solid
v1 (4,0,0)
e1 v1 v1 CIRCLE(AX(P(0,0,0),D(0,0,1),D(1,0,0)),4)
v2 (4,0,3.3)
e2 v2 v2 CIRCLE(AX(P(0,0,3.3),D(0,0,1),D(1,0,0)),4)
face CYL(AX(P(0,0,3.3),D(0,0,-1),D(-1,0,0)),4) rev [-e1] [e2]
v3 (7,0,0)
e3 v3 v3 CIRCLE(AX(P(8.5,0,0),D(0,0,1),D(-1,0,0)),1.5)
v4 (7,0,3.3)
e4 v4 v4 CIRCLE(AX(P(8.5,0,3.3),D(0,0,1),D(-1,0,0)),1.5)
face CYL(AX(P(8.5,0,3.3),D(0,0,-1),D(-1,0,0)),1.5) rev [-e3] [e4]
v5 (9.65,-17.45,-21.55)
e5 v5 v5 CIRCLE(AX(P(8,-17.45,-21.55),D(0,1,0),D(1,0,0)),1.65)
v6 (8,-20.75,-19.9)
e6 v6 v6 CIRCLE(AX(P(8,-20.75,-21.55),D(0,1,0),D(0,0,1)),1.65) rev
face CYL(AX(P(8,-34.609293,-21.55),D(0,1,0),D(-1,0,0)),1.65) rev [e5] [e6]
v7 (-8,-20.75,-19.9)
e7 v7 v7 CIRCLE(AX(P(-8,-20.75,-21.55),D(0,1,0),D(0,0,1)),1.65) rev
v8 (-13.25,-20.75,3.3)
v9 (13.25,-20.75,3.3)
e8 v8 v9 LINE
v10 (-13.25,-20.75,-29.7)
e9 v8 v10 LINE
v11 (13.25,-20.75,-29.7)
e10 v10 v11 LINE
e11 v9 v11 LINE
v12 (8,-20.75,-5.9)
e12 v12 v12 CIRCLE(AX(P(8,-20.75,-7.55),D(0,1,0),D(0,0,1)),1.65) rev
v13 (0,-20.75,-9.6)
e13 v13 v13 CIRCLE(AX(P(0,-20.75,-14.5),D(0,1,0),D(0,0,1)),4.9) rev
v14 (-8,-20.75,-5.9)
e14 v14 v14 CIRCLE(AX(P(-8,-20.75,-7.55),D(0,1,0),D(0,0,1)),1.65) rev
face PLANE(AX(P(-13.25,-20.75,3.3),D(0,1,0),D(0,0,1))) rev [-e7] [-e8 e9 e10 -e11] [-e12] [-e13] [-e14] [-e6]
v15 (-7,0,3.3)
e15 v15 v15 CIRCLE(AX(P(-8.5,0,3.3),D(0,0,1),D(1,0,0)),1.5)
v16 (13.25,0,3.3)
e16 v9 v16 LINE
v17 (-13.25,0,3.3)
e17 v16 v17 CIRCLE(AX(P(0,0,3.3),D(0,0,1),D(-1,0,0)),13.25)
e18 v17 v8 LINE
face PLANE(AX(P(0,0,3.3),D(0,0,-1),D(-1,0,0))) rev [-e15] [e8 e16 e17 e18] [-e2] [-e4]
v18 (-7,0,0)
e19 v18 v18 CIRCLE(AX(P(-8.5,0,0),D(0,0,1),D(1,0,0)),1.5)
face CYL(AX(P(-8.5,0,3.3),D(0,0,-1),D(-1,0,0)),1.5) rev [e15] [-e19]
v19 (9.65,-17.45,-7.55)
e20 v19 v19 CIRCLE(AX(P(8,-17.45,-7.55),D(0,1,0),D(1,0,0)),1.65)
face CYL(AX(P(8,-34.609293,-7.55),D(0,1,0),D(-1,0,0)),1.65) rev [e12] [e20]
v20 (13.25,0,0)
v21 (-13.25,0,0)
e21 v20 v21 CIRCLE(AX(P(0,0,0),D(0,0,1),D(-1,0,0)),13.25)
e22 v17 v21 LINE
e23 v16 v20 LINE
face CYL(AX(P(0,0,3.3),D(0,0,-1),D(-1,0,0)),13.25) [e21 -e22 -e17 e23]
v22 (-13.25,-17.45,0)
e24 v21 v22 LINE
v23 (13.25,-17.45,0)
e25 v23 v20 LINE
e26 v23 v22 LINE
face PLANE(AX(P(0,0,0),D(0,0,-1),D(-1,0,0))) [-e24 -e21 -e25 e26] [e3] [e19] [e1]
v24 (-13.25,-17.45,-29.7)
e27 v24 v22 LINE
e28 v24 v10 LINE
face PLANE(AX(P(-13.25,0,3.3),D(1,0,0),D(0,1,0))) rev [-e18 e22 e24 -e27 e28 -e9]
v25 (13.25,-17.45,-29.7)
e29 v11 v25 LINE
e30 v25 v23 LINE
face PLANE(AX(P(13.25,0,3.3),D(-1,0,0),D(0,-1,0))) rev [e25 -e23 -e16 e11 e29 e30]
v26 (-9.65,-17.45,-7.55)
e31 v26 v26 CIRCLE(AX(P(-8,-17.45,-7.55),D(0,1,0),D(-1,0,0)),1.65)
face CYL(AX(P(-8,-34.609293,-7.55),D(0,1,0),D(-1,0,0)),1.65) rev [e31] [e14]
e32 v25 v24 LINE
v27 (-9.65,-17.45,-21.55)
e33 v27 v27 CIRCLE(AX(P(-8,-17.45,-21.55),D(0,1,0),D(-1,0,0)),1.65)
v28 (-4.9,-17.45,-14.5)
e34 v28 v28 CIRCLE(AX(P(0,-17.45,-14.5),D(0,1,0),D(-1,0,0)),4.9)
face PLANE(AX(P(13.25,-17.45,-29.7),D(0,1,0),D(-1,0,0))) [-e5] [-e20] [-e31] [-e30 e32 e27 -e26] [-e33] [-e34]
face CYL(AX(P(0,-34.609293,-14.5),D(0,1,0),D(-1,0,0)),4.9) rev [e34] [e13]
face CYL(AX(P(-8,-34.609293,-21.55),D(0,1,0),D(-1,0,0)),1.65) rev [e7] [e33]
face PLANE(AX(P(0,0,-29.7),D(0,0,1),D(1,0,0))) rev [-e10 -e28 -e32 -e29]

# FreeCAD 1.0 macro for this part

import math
import FreeCAD as App
import Part
import Sketcher

V = App.Vector


def add_polygon(sketch, points):
    """Adds a closed chain of lines whose ends are joined by coincident constraints."""
    first, n = sketch.GeometryCount, len(points)
    for a, b in zip(points, points[1:] + points[:1]):
        sketch.addGeometry(Part.LineSegment(App.Vector(*a, 0), App.Vector(*b, 0)), False)
    for i in range(n):
        sketch.addConstraint(Sketcher.Constraint("Coincident", first + i, 2, first + (i + 1) % n, 1))

doc = App.newDocument("Part")
body = doc.addObject("PartDesign::Body", "Body")

sketch1 = body.newObject("Sketcher::SketchObject", "Sketch")
sketch1.AttachmentSupport = (doc.getObject("XY_Plane"), [""])
sketch1.MapMode = "FlatFace"
sketch1.addGeometry([
    Part.LineSegment(V(-13.2, 0, 0), V(-13.2, -20.8, 0)),
    Part.LineSegment(V(-13.2, -20.8, 0), V(13.2, -20.8, 0)),
    Part.LineSegment(V(13.2, -20.8, 0), V(13.2, 0, 0)),
    Part.ArcOfCircle(Part.Circle(V(0, 0, 0), V(0, 0, 1), 13.2), math.radians(0), math.radians(180)),
    Part.Circle(V(-8.5, 0, 0), V(0, 0, 1), 1.5),
    Part.Circle(V(0, 0, 0), V(0, 0, 1), 4),
    Part.Circle(V(8.5, 0, 0), V(0, 0, 1), 1.5),
], False)
sketch1.addConstraint([
    Sketcher.Constraint("Coincident", 0, 2, 1, 1),
    Sketcher.Constraint("Coincident", 1, 2, 2, 1),
    Sketcher.Constraint("Tangent", 2, 2, 3, 1),
    Sketcher.Constraint("Tangent", 3, 2, 0, 1),
    Sketcher.Constraint("Vertical", 0),
    Sketcher.Constraint("Horizontal", 1),
    Sketcher.Constraint("Vertical", 2),
    Sketcher.Constraint("Coincident", 3, 3, -1, 1),
    Sketcher.Constraint("Coincident", 5, 3, -1, 1),
    Sketcher.Constraint("Equal", 4, 6),
    Sketcher.Constraint("Symmetric", 4, 3, 6, 3, -1, 1),
    Sketcher.Constraint("PointOnObject", 4, 3, -1),
    Sketcher.Constraint("Diameter", 4, 3.0),
    Sketcher.Constraint("Diameter", 5, 8.0),
    Sketcher.Constraint("Radius", 3, 13.25),
    Sketcher.Constraint("DistanceX", 4, 3, 6, 3, 17.0),
    Sketcher.Constraint("DistanceY", 0, 2, 0, 1, 20.75),
])
pad1 = body.newObject("PartDesign::Pad", "Pad")
pad1.Profile = sketch1
pad1.Length = 3.3

sketch2 = body.newObject("Sketcher::SketchObject", "Sketch001")
sketch2.AttachmentSupport = (doc.getObject("XY_Plane"), [""])
sketch2.MapMode = "FlatFace"
add_polygon(sketch2, [(-13.2, -17.4), (-13.2, -20.8), (13.2, -20.8), (13.2, -17.4)])
sketch2.addConstraint([
    Sketcher.Constraint("Vertical", 0),
    Sketcher.Constraint("Horizontal", 1),
    Sketcher.Constraint("Vertical", 2),
    Sketcher.Constraint("Horizontal", 3),
    Sketcher.Constraint("DistanceX", 1, 1, 1, 2, 26.5),
    Sketcher.Constraint("DistanceY", 0, 2, 0, 1, 3.3),
    Sketcher.Constraint("DistanceX", 0, 2, -1, 1, 13.25),
    Sketcher.Constraint("DistanceY", 0, 2, -1, 1, 20.75),
])
pad2 = body.newObject("PartDesign::Pad", "Pad001")
pad2.Profile = sketch2
pad2.Length = 29.7
pad2.Reversed = True

sketch3 = body.newObject("Sketcher::SketchObject", "Sketch002")
sketch3.AttachmentSupport = (doc.getObject("XZ_Plane"), [""])
sketch3.MapMode = "FlatFace"
sketch3.AttachmentOffset = App.Placement(V(0, 0, 17.45), App.Rotation())
sketch3.addGeometry([
    Part.Circle(V(0, -14.5, 0), V(0, 0, 1), 4.9),
    Part.Circle(V(-8, -21.6, 0), V(0, 0, 1), 1.6),
    Part.Circle(V(-8, -7.5, 0), V(0, 0, 1), 1.6),
    Part.Circle(V(8, -7.5, 0), V(0, 0, 1), 1.6),
    Part.Circle(V(8, -21.6, 0), V(0, 0, 1), 1.6),
], False)
sketch3.addConstraint([
    Sketcher.Constraint("Equal", 1, 2),
    Sketcher.Constraint("Equal", 2, 3),
    Sketcher.Constraint("Equal", 3, 4),
    Sketcher.Constraint("Symmetric", 2, 3, 3, 3, -2),
    Sketcher.Constraint("Symmetric", 1, 3, 4, 3, -2),
    Sketcher.Constraint("PointOnObject", 0, 3, -2),
    Sketcher.Constraint("Vertical", 1, 3, 2, 3),
    Sketcher.Constraint("Diameter", 0, 9.8),
    Sketcher.Constraint("Diameter", 1, 3.3),
    Sketcher.Constraint("DistanceX", 1, 3, -1, 1, 8.0),
    Sketcher.Constraint("DistanceY", 1, 3, 2, 3, 14.0),
    Sketcher.Constraint("DistanceY", 0, 3, -1, 1, 14.5),
    Sketcher.Constraint("DistanceY", 1, 3, -1, 1, 21.55),
])
pocket1 = body.newObject("PartDesign::Pocket", "Pocket")
pocket1.Profile = sketch3
pocket1.Length = 3.3
pocket1.Reversed = True

doc.recompute()
